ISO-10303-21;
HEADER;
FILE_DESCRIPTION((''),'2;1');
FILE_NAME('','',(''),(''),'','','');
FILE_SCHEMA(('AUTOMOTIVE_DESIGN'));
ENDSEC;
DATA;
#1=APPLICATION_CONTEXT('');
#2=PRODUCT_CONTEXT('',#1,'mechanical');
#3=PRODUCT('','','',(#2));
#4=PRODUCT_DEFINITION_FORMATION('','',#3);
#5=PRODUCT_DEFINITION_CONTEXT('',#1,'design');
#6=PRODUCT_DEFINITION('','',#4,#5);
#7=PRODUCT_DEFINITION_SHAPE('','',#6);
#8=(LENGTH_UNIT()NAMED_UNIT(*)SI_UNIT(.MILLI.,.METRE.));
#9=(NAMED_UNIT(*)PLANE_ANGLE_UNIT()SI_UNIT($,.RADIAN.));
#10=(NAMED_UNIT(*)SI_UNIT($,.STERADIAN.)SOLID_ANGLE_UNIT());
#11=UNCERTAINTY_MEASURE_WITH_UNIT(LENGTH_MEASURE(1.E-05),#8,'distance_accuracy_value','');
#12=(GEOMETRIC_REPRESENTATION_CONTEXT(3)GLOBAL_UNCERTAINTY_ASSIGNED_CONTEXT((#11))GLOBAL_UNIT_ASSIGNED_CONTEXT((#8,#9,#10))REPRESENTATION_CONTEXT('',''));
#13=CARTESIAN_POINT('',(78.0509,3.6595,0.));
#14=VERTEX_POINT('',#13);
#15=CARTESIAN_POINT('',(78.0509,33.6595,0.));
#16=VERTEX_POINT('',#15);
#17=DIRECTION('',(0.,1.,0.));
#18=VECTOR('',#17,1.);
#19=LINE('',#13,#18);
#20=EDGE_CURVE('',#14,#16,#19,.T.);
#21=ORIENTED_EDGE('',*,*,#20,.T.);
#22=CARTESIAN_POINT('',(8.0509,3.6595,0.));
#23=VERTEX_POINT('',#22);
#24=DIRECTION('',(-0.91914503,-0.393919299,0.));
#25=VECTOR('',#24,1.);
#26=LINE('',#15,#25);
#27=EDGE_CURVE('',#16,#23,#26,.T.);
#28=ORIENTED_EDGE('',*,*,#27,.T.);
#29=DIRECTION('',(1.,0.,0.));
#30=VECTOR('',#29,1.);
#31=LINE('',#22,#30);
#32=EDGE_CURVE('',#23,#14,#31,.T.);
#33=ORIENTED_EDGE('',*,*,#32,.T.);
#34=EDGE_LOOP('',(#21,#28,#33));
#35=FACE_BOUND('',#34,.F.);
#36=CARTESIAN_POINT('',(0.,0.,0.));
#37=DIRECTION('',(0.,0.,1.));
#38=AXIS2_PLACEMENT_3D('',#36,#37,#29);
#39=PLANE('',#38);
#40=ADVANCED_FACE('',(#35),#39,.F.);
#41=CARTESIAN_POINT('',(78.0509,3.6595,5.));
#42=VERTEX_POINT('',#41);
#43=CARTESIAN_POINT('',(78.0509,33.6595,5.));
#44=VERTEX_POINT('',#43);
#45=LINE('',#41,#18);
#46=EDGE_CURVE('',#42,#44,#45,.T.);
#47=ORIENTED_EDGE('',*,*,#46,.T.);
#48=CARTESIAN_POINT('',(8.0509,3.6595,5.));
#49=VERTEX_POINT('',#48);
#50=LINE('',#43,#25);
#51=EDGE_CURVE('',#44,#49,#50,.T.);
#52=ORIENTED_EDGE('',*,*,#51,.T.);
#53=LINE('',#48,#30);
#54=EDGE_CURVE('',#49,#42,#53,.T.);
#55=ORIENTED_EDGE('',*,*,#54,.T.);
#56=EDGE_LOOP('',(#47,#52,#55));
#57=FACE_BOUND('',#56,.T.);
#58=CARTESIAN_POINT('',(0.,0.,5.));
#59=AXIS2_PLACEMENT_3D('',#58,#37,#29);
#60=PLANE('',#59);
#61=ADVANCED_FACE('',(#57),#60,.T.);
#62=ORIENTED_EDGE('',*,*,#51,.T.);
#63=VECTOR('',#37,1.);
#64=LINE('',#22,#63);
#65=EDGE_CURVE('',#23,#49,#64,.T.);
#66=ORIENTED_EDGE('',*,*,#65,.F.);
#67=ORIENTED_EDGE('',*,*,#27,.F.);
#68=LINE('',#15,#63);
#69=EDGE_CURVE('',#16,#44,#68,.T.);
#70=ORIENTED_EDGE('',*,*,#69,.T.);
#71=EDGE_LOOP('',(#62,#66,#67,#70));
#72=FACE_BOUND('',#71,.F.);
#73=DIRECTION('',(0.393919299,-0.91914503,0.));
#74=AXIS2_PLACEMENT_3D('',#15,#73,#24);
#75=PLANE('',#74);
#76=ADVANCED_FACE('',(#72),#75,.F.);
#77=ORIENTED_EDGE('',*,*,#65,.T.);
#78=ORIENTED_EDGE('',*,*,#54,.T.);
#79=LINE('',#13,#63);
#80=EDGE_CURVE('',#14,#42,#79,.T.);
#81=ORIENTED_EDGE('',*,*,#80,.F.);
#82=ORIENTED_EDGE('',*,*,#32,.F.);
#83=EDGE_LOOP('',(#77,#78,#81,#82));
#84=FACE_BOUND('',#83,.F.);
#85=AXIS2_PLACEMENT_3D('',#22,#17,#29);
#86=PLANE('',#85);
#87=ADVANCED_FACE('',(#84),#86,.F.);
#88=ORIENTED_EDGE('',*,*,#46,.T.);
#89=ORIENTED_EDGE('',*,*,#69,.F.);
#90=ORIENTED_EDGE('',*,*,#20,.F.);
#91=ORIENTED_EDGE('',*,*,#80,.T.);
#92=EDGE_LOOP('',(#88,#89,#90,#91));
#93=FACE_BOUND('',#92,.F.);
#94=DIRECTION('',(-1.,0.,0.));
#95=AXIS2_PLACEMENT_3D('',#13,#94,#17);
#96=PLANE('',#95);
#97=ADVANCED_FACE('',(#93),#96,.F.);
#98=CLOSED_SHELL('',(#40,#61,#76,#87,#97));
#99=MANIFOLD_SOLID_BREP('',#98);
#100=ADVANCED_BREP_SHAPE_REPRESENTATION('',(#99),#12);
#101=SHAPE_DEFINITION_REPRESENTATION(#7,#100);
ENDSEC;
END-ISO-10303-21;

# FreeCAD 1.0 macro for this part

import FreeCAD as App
import Part
import Sketcher
from FreeCAD import Vector


def add_polygon(sketch, points):
    """Adds a closed chain of lines whose ends are joined by coincident constraints."""
    first, n = sketch.GeometryCount, len(points)
    for a, b in zip(points, points[1:] + points[:1]):
        sketch.addGeometry(Part.LineSegment(App.Vector(*a, 0), App.Vector(*b, 0)), False)
    for i in range(n):
        sketch.addConstraint(Sketcher.Constraint("Coincident", first + i, 2, first + (i + 1) % n, 1))

doc = App.newDocument("Part")
params = doc.addObject("Spreadsheet::Sheet", "Params")
for row, (alias, value) in enumerate([
    ("sketch1_width", "70 mm"),
    ("sketch1_height", "30 mm"),
    ("pad1_length", "5 mm"),
], start=1):
    params.set(f"A{row}", alias)
    params.set(f"B{row}", "=" + value)
    params.setAlias(f"B{row}", alias)

body = doc.addObject("PartDesign::Body", "Body")

sketch1 = body.newObject("Sketcher::SketchObject", "Sketch")
sketch1.AttachmentSupport = (doc.getObject("XY_Plane"), [""])
sketch1.MapMode = "FlatFace"
add_polygon(sketch1, [(78, 34), (8, 4), (78, 4)])
sketch1.addConstraint([
    Sketcher.Constraint("Horizontal", 1),
    Sketcher.Constraint("Vertical", 2),
    Sketcher.Constraint("DistanceX", 1, 1, 1, 2, 70.0),
    Sketcher.Constraint("DistanceY", 2, 1, 2, 2, 30.0),
    Sketcher.Constraint("DistanceX", -1, 1, 0, 2, 8.051),
    Sketcher.Constraint("DistanceY", -1, 1, 0, 2, 3.6595),
])
sketch1.setExpression("Constraints[5]", "Params.sketch1_width")
sketch1.setExpression("Constraints[6]", "Params.sketch1_height")
pad1 = body.newObject("PartDesign::Pad", "Pad")
pad1.Profile = sketch1
pad1.setExpression("Length", "Params.pad1_length")

doc.recompute()
